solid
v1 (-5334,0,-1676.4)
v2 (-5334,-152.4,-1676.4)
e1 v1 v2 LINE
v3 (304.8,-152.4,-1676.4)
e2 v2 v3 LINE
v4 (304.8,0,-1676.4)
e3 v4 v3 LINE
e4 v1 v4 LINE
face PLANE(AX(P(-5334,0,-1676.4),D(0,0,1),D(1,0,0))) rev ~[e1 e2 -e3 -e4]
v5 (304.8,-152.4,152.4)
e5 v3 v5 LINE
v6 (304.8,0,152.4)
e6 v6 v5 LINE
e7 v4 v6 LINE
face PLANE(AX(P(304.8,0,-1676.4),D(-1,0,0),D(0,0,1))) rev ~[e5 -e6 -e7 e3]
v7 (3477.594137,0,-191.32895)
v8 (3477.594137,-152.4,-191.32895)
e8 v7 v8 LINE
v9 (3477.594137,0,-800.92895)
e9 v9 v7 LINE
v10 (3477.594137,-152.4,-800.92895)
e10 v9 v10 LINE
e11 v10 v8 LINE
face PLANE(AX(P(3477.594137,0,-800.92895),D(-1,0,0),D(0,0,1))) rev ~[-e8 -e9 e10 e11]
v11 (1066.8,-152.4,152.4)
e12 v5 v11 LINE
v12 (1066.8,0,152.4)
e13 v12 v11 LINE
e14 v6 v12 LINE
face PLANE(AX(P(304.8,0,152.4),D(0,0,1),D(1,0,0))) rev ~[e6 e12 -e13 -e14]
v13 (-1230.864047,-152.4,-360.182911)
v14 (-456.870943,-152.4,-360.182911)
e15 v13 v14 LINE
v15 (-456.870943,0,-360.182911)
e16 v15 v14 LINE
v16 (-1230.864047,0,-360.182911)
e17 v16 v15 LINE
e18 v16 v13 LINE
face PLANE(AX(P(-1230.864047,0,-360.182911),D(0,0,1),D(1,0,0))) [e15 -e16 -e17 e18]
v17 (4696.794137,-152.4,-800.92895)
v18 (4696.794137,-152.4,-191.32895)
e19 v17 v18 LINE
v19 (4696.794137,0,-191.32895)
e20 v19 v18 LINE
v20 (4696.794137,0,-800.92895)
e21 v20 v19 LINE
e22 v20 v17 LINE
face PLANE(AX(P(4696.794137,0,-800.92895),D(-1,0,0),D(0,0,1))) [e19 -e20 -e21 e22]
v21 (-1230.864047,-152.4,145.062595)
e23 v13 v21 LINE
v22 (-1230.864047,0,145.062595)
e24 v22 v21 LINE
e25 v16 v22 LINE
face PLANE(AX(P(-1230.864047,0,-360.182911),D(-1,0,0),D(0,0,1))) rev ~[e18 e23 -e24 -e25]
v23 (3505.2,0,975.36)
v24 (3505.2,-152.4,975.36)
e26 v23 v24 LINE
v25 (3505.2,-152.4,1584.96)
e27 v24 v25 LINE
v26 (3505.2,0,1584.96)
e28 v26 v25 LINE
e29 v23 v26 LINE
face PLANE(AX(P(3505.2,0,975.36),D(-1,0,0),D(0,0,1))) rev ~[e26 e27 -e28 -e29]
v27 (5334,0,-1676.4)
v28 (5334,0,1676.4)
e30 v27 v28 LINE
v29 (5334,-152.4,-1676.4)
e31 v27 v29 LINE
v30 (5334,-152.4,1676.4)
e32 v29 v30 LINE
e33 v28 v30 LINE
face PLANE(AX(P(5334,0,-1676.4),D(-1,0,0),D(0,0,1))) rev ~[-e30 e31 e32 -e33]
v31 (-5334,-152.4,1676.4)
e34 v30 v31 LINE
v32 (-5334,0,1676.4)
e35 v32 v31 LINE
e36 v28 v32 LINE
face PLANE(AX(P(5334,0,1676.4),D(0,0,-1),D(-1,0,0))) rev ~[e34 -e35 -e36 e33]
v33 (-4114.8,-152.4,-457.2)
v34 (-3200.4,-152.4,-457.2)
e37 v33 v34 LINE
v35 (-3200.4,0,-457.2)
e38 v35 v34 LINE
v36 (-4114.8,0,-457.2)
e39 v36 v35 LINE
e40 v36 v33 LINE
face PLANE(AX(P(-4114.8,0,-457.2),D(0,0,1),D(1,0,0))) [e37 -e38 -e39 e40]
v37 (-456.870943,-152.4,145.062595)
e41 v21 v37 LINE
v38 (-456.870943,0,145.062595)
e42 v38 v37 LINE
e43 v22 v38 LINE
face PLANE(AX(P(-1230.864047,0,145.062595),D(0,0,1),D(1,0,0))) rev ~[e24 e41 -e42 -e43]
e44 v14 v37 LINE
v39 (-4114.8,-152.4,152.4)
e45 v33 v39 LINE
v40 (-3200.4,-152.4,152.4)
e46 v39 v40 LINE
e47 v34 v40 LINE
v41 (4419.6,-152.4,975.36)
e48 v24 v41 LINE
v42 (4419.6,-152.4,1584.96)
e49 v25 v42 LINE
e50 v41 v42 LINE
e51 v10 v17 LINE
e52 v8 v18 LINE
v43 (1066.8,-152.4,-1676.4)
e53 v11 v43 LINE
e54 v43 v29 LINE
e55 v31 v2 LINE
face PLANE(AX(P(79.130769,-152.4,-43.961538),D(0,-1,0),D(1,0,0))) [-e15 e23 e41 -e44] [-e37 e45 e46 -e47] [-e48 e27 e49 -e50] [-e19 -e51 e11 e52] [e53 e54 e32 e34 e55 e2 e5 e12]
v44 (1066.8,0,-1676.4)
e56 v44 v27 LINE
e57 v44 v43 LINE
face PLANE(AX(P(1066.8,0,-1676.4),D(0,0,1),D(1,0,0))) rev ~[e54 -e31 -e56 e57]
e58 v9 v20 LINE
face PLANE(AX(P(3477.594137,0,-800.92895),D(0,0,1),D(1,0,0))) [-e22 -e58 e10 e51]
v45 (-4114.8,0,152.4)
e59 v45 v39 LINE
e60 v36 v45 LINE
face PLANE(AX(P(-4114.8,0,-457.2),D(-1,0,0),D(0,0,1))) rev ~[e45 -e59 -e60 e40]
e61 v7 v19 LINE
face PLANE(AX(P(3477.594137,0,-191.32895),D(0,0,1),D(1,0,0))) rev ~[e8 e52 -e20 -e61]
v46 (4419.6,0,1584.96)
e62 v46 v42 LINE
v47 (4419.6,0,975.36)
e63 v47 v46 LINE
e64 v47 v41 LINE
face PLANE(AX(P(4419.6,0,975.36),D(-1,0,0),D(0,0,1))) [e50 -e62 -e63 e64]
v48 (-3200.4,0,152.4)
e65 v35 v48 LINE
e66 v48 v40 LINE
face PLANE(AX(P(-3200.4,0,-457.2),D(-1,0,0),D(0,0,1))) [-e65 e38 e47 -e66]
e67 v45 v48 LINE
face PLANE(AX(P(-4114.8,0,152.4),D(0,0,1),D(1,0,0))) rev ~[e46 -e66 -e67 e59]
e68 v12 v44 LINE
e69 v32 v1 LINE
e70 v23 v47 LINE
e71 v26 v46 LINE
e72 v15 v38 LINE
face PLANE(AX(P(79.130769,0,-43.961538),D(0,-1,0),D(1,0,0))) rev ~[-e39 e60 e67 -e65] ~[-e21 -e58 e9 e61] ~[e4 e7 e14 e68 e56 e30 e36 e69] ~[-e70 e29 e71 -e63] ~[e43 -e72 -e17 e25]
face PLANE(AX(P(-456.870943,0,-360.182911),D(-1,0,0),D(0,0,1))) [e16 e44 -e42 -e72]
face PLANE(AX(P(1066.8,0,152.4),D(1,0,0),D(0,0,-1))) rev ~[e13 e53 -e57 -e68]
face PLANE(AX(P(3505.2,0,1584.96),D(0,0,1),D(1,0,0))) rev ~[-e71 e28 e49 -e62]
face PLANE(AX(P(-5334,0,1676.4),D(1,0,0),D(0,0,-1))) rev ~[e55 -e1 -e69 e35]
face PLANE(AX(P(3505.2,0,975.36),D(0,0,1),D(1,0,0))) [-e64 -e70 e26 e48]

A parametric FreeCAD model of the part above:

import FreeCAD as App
import Part
import Sketcher
from FreeCAD import Vector
Q = App.Units.Quantity


def add_polygon(sketch, points):
    """Adds a closed chain of lines whose ends are joined by coincident constraints."""
    first, n = sketch.GeometryCount, len(points)
    for a, b in zip(points, points[1:] + points[:1]):
        sketch.addGeometry(Part.LineSegment(App.Vector(*a, 0), App.Vector(*b, 0)), False)
    for i in range(n):
        sketch.addConstraint(Sketcher.Constraint("Coincident", first + i, 2, first + (i + 1) % n, 1))

doc = App.newDocument("Part")
body = doc.addObject("PartDesign::Body", "Body")

sketch1 = body.newObject("Sketcher::SketchObject", "Sketch")
sketch1.AttachmentSupport = (doc.getObject("XZ_Plane"), [""])
sketch1.MapMode = "FlatFace"
add_polygon(sketch1, [(5334, 1676), (-5334, 1676), (-5334, -1676), (305, -1676), (305, 152), (1067, 152), (1067, -1676), (5334, -1676)])
add_polygon(sketch1, [(-3200, -457), (-4115, -457), (-4115, 152), (-3200, 152)])
add_polygon(sketch1, [(-457, -360), (-1231, -360), (-1231, 145), (-457, 145)])
add_polygon(sketch1, [(4697, -801), (3478, -801), (3478, -191), (4697, -191)])
add_polygon(sketch1, [(4420, 975), (3505, 975), (3505, 1585), (4420, 1585)])
sketch1.addConstraint([
    Sketcher.Constraint("Horizontal", 0),
    Sketcher.Constraint("Vertical", 1),
    Sketcher.Constraint("Horizontal", 2),
    Sketcher.Constraint("Vertical", 3),
    Sketcher.Constraint("Horizontal", 4),
    Sketcher.Constraint("Vertical", 5),
    Sketcher.Constraint("Horizontal", 6),
    Sketcher.Constraint("Vertical", 7),
    Sketcher.Constraint("Horizontal", 8),
    Sketcher.Constraint("Vertical", 9),
    Sketcher.Constraint("Horizontal", 10),
    Sketcher.Constraint("Vertical", 11),
    Sketcher.Constraint("Horizontal", 12),
    Sketcher.Constraint("Vertical", 13),
    Sketcher.Constraint("Horizontal", 14),
    Sketcher.Constraint("Vertical", 15),
    Sketcher.Constraint("Horizontal", 16),
    Sketcher.Constraint("Vertical", 17),
    Sketcher.Constraint("Horizontal", 18),
    Sketcher.Constraint("Vertical", 19),
    Sketcher.Constraint("Horizontal", 20),
    Sketcher.Constraint("Vertical", 21),
    Sketcher.Constraint("Horizontal", 22),
    Sketcher.Constraint("Vertical", 23),
    Sketcher.Constraint("Symmetric", 0, 2, 6, 2, -1, 1),
    Sketcher.Constraint("Horizontal", 2, 2, 5, 2),
    Sketcher.Constraint("Horizontal", 4, 2, 9, 2),
    Sketcher.Constraint("Equal", 10, 20),
    Sketcher.Constraint("Equal", 11, 17),
    Sketcher.Constraint("Equal", 19, 21),
    Sketcher.Constraint("DistanceX", 0, 2, 0, 1, Q("420 in")),
    Sketcher.Constraint("DistanceX", 2, 1, 2, 2, Q("222 in")),
    Sketcher.Constraint("DistanceX", 4, 1, 4, 2, Q("30 in")),
    Sketcher.Constraint("DistanceX", 8, 2, 8, 1, Q("36 in")),
    Sketcher.Constraint("DistanceX", 16, 2, 16, 1, Q("48 in")),
    Sketcher.Constraint("DistanceY", 1, 2, 1, 1, Q("132 in")),
    Sketcher.Constraint("DistanceY", 3, 1, 3, 2, Q("72 in")),
    Sketcher.Constraint("DistanceY", 9, 1, 9, 2, Q("24 in")),
    Sketcher.Constraint("DistanceX", 8, 2, -1, 1, Q("162 in")),
    Sketcher.Constraint("DistanceX", -1, 1, 20, 2, Q("138 in")),
    Sketcher.Constraint("DistanceY", -1, 1, 20, 2, Q("38.4 in")),
    Sketcher.Constraint("DistanceX", 12, 2, 12, 1, 773.993105),
    Sketcher.Constraint("DistanceY", 13, 1, 13, 2, 505.245507),
    Sketcher.Constraint("DistanceY", 12, 2, -1, 1, 360.182911),
    Sketcher.Constraint("DistanceY", 16, 2, -1, 1, 800.92895),
    Sketcher.Constraint("DistanceX", 12, 2, -1, 1, 1230.864047),
    Sketcher.Constraint("DistanceX", -1, 1, 16, 2, 3477.594137),
])
pad1 = body.newObject("PartDesign::Pad", "Pad")
pad1.Profile = sketch1
pad1.Length = Q("6 in")

doc.recompute()
